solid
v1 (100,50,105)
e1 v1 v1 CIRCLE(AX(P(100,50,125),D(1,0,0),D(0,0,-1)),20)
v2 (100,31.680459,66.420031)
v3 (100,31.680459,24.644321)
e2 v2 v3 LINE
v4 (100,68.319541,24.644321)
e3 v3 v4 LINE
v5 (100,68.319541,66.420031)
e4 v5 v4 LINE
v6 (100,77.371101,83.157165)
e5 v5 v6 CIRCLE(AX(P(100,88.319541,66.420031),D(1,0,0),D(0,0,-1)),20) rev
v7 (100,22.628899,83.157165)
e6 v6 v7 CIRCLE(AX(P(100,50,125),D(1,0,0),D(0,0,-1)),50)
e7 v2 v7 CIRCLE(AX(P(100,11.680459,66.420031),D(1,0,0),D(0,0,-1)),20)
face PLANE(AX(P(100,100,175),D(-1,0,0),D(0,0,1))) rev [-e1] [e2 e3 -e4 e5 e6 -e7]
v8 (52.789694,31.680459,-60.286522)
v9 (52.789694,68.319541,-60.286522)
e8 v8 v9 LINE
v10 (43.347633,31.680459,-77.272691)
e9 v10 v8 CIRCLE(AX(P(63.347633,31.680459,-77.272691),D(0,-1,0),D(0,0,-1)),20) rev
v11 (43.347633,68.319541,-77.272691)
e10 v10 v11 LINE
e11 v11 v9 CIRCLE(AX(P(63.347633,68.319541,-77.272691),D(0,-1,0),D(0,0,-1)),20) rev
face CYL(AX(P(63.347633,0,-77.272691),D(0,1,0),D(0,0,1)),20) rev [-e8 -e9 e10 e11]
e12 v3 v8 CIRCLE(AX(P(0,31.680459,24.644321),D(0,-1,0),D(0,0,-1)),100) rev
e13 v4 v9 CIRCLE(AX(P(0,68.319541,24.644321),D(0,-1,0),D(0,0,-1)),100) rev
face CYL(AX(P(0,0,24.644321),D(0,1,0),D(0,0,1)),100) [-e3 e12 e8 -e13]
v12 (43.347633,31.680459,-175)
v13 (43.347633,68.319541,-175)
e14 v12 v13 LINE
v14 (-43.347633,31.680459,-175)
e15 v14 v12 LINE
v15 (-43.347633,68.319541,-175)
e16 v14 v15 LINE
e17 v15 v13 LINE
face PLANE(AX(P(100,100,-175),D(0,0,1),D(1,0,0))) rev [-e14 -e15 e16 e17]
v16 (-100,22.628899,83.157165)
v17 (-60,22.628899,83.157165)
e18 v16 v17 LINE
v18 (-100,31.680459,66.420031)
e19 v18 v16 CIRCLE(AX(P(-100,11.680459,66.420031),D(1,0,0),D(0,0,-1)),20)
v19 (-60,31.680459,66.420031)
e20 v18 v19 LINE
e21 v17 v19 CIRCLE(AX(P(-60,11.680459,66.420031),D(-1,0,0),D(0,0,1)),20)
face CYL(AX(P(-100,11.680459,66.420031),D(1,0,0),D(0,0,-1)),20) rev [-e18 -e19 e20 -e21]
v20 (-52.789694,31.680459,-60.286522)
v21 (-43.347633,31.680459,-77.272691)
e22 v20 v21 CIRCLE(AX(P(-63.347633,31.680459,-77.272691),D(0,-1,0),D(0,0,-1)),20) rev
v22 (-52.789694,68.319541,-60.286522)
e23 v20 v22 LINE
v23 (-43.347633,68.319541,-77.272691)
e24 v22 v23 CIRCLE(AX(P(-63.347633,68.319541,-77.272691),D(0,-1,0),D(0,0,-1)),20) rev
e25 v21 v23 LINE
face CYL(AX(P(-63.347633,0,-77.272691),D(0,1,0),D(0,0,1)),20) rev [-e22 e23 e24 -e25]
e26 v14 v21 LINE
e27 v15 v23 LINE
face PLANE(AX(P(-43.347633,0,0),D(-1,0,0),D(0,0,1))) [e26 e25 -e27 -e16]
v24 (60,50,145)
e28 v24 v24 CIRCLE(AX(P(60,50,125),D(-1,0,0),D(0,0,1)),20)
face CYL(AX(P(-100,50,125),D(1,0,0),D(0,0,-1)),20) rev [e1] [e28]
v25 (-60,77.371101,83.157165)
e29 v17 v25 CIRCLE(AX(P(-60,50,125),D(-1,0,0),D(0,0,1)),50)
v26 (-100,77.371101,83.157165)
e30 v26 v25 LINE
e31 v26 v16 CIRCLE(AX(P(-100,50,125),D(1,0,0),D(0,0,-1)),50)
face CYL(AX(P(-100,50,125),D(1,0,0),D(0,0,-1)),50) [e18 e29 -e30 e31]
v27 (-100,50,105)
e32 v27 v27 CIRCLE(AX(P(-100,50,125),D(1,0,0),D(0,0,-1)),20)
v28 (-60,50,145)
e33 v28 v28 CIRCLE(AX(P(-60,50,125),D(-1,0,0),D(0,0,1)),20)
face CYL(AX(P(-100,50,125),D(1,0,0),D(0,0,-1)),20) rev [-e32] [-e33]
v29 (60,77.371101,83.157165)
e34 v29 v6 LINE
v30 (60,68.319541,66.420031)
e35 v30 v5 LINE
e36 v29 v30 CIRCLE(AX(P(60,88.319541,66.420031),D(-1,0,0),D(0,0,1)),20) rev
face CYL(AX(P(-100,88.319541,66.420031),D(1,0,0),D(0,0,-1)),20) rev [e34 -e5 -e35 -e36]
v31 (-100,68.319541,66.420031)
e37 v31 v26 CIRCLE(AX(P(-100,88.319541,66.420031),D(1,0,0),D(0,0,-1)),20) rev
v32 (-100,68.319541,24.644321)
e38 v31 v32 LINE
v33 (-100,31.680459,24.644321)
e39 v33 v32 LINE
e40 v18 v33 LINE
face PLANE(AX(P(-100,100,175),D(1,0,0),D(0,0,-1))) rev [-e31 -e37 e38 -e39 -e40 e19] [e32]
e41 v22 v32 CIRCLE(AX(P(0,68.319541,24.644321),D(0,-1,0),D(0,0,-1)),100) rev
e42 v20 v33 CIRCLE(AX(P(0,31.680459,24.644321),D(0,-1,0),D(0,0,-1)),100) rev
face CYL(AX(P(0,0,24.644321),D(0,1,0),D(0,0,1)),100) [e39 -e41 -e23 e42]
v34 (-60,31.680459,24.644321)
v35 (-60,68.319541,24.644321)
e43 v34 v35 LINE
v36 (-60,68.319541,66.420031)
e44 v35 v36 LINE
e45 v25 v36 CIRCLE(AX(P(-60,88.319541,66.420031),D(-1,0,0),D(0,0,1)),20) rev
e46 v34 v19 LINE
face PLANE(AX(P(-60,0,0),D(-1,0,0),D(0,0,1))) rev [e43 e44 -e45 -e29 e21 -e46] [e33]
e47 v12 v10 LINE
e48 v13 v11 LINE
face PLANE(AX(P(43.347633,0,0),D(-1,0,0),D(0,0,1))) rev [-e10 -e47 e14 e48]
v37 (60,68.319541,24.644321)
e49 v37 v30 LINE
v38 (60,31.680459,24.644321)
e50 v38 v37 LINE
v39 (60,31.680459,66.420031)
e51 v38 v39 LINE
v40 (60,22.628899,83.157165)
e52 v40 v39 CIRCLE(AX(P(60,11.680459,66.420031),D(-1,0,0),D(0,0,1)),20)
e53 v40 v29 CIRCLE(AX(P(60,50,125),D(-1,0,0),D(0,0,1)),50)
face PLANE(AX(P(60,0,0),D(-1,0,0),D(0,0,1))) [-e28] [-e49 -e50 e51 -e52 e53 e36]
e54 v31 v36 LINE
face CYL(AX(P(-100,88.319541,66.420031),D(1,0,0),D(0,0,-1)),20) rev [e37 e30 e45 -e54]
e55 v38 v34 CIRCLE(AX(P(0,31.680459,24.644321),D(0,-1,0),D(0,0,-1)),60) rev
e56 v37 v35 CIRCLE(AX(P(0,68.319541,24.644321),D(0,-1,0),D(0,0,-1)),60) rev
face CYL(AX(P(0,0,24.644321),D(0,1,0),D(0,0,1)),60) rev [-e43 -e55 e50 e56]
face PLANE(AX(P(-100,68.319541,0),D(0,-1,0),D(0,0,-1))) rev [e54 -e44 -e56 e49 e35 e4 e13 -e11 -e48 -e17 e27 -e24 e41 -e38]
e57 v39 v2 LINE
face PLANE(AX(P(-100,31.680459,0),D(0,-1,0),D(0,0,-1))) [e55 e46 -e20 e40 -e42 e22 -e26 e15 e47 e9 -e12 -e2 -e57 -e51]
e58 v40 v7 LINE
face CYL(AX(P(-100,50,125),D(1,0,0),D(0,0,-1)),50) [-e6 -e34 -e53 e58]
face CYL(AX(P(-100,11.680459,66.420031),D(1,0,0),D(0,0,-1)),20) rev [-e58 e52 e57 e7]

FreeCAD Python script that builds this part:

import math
import FreeCAD as App
import Part
import Sketcher


def add_polygon(sketch, points):
    """Adds a closed chain of lines whose ends are joined by coincident constraints."""
    first, n = sketch.GeometryCount, len(points)
    for a, b in zip(points, points[1:] + points[:1]):
        sketch.addGeometry(Part.LineSegment(App.Vector(*a, 0), App.Vector(*b, 0)), False)
    for i in range(n):
        sketch.addConstraint(Sketcher.Constraint("Coincident", first + i, 2, first + (i + 1) % n, 1))

doc = App.newDocument("Part")
params = doc.addObject("Spreadsheet::Sheet", "Params")
for row, (alias, value) in enumerate([
    ("sketch1_width", "200 mm"),
    ("sketch1_height", "350 mm"),
    ("pad1_length", "100 mm"),
    ("sketch2_radius", "20 mm"),
    ("sketch2_radius2", "100 mm"),
    ("sketch2_radius3", "60 mm"),
    ("sketch3_diameter", "40 mm"),
    ("sketch3_radius", "50 mm"),
], start=1):
    params.set(f"A{row}", alias)
    params.set(f"B{row}", "=" + value)
    params.setAlias(f"B{row}", alias)

body = doc.addObject("PartDesign::Body", "Body")

# Sketch on XZ plane
sketch1 = body.newObject("Sketcher::SketchObject", "Sketch")
sketch1.AttachmentSupport = (doc.getObject("XZ_Plane"), [""])
sketch1.MapMode = "FlatFace"
add_polygon(sketch1, [(-100, -175), (-100, 175), (100, 175), (100, -175)])  # lines 0-3
sketch1.addConstraint(Sketcher.Constraint("Vertical", 0))
sketch1.addConstraint(Sketcher.Constraint("Horizontal", 1))
sketch1.addConstraint(Sketcher.Constraint("Vertical", 2))
sketch1.addConstraint(Sketcher.Constraint("Horizontal", 3))
sketch1.addConstraint(Sketcher.Constraint("Symmetric", 0, 2, 2, 2, -1, 1))
sketch1.addConstraint(Sketcher.Constraint("DistanceX", 1, 1, 1, 2, 200.0))
sketch1.addConstraint(Sketcher.Constraint("DistanceY", 0, 1, 0, 2, 350.0))
sketch1.setExpression("Constraints[9]", "Params.sketch1_width")
sketch1.setExpression("Constraints[10]", "Params.sketch1_height")
pad1 = body.newObject("PartDesign::Pad", "Pad")
pad1.Profile = sketch1
pad1.setExpression("Length", "Params.pad1_length")
pad1.Reversed = True

# Sketch on XZ plane
sketch2 = body.newObject("Sketcher::SketchObject", "Sketch001")
sketch2.AttachmentSupport = (doc.getObject("XZ_Plane"), [""])
sketch2.MapMode = "FlatFace"
sketch2.AttachmentOffset = App.Placement(App.Vector(0, 0, -100), App.Rotation())
sketch2.addGeometry(Part.LineSegment(App.Vector(100, -175, 0), App.Vector(43, -175, 0)), False)
sketch2.addGeometry(Part.LineSegment(App.Vector(43, -175, 0), App.Vector(43, -77, 0)), False)
sketch2.addGeometry(Part.ArcOfCircle(Part.Circle(App.Vector(63, -77, 0), App.Vector(0, 0, 1), 20), math.radians(122), math.radians(180)), False)
sketch2.addGeometry(Part.ArcOfCircle(Part.Circle(App.Vector(0, 25, 0), App.Vector(0, 0, 1), 100), math.radians(-58), math.radians(0)), False)
sketch2.addGeometry(Part.LineSegment(App.Vector(100, 25, 0), App.Vector(100, -175, 0)), False)
sketch2.addGeometry(Part.LineSegment(App.Vector(-43, -77, 0), App.Vector(-43, -175, 0)), False)
sketch2.addGeometry(Part.LineSegment(App.Vector(-43, -175, 0), App.Vector(-100, -175, 0)), False)
sketch2.addGeometry(Part.LineSegment(App.Vector(-100, -175, 0), App.Vector(-100, 25, 0)), False)
sketch2.addGeometry(Part.ArcOfCircle(Part.Circle(App.Vector(0, 25, 0), App.Vector(0, 0, 1), 100), math.radians(180), math.radians(238)), False)
sketch2.addGeometry(Part.ArcOfCircle(Part.Circle(App.Vector(-63, -77, 0), App.Vector(0, 0, 1), 20), math.radians(0), math.radians(58)), False)
sketch2.addGeometry(Part.LineSegment(App.Vector(60, 175, 0), App.Vector(60, 25, 0)), False)
sketch2.addGeometry(Part.ArcOfCircle(Part.Circle(App.Vector(0, 25, 0), App.Vector(0, 0, 1), 60), math.radians(180), math.radians(360)), False)
sketch2.addGeometry(Part.LineSegment(App.Vector(-60, 25, 0), App.Vector(-60, 175, 0)), False)
sketch2.addGeometry(Part.LineSegment(App.Vector(-60, 175, 0), App.Vector(60, 175, 0)), False)
sketch2.addConstraint(Sketcher.Constraint("Coincident", 0, 2, 1, 1))
sketch2.addConstraint(Sketcher.Constraint("Tangent", 1, 2, 2, 2))
sketch2.addConstraint(Sketcher.Constraint("Tangent", 2, 1, 3, 1))
sketch2.addConstraint(Sketcher.Constraint("Tangent", 3, 2, 4, 1))
sketch2.addConstraint(Sketcher.Constraint("Coincident", 4, 2, 0, 1))
sketch2.addConstraint(Sketcher.Constraint("Coincident", 5, 2, 6, 1))
sketch2.addConstraint(Sketcher.Constraint("Coincident", 6, 2, 7, 1))
sketch2.addConstraint(Sketcher.Constraint("Tangent", 7, 2, 8, 1))
sketch2.addConstraint(Sketcher.Constraint("Tangent", 8, 2, 9, 2))
sketch2.addConstraint(Sketcher.Constraint("Tangent", 9, 1, 5, 1))
sketch2.addConstraint(Sketcher.Constraint("Tangent", 10, 2, 11, 2))
sketch2.addConstraint(Sketcher.Constraint("Tangent", 11, 1, 12, 1))
sketch2.addConstraint(Sketcher.Constraint("Coincident", 12, 2, 13, 1))
sketch2.addConstraint(Sketcher.Constraint("Coincident", 13, 2, 10, 1))
sketch2.addConstraint(Sketcher.Constraint("Horizontal", 0))
sketch2.addConstraint(Sketcher.Constraint("Vertical", 1))
sketch2.addConstraint(Sketcher.Constraint("Vertical", 4))
sketch2.addConstraint(Sketcher.Constraint("Vertical", 5))
sketch2.addConstraint(Sketcher.Constraint("Horizontal", 6))
sketch2.addConstraint(Sketcher.Constraint("Vertical", 7))
sketch2.addConstraint(Sketcher.Constraint("Vertical", 10))
sketch2.addConstraint(Sketcher.Constraint("Vertical", 12))
sketch2.addConstraint(Sketcher.Constraint("Horizontal", 13))
sketch2.addConstraint(Sketcher.Constraint("Coincident", 8, 3, 3, 3))
sketch2.addConstraint(Sketcher.Constraint("Coincident", 11, 3, 3, 3))
sketch2.addConstraint(Sketcher.Constraint("Equal", 3, 8))
sketch2.addConstraint(Sketcher.Constraint("Equal", 2, 9))
sketch2.addConstraint(Sketcher.Constraint("Symmetric", 2, 3, 9, 3, -2))
sketch2.addConstraint(Sketcher.Constraint("Horizontal", 4, 2, 5, 2))
sketch2.addConstraint(Sketcher.Constraint("Radius", 2, 20.0))
sketch2.addConstraint(Sketcher.Constraint("Radius", 3, 100.0))
sketch2.addConstraint(Sketcher.Constraint("Radius", 11, 60.0))
sketch2.addConstraint(Sketcher.Constraint("DistanceY", 0, 2, -1, 1, 175.0))
sketch2.addConstraint(Sketcher.Constraint("DistanceY", -1, 1, 12, 2, 175.0))
sketch2.addConstraint(Sketcher.Constraint("DistanceY", 1, 1, 1, 2, 97.727309))
sketch2.addConstraint(Sketcher.Constraint("DistanceY", 4, 2, 4, 1, 199.644321))
sketch2.setExpression("Constraints[29]", "Params.sketch2_radius")
sketch2.setExpression("Constraints[30]", "Params.sketch2_radius2")
sketch2.setExpression("Constraints[31]", "Params.sketch2_radius3")
pocket1 = body.newObject("PartDesign::Pocket", "Pocket")
pocket1.Profile = sketch2
pocket1.Type = "ThroughAll"
pocket1.Reversed = True

# Sketch on YZ plane
sketch3 = body.newObject("Sketcher::SketchObject", "Sketch002")
sketch3.AttachmentSupport = (doc.getObject("YZ_Plane"), [""])
sketch3.MapMode = "FlatFace"
sketch3.AttachmentOffset = App.Placement(App.Vector(0, 0, 100), App.Rotation())
sketch3.addGeometry(Part.LineSegment(App.Vector(100, 175, 0), App.Vector(50, 175, 0)), False)
sketch3.addGeometry(Part.ArcOfCircle(Part.Circle(App.Vector(50, 125, 0), App.Vector(0, 0, 1), 50), math.radians(0), math.radians(90)), False)
sketch3.addGeometry(Part.LineSegment(App.Vector(100, 125, 0), App.Vector(100, 175, 0)), False)
sketch3.addGeometry(Part.Circle(App.Vector(50, 125, 0), App.Vector(0, 0, 1), 20), False)
sketch3.addGeometry(Part.ArcOfCircle(Part.Circle(App.Vector(50, 125, 0), App.Vector(0, 0, 1), 50), math.radians(90), math.radians(180)), False)
sketch3.addGeometry(Part.LineSegment(App.Vector(50, 175, 0), App.Vector(0, 175, 0)), False)
sketch3.addGeometry(Part.LineSegment(App.Vector(0, 175, 0), App.Vector(0, 125, 0)), False)
sketch3.addGeometry(Part.ArcOfCircle(Part.Circle(App.Vector(50, 125, 0), App.Vector(0, 0, 1), 50), math.radians(-180), math.radians(-123)), False)
sketch3.addGeometry(Part.LineSegment(App.Vector(0, 125, 0), App.Vector(0, -77, 0)), False)
sketch3.addGeometry(Part.LineSegment(App.Vector(0, -77, 0), App.Vector(0, -175, 0)), False)
sketch3.addGeometry(Part.LineSegment(App.Vector(0, -175, 0), App.Vector(32, -175, 0)), False)
sketch3.addGeometry(Part.LineSegment(App.Vector(32, -175, 0), App.Vector(32, -77, 0)), False)
sketch3.addGeometry(Part.LineSegment(App.Vector(32, -77, 0), App.Vector(32, 66, 0)), False)
sketch3.addGeometry(Part.ArcOfCircle(Part.Circle(App.Vector(12, 66, 0), App.Vector(0, 0, 1), 20), math.radians(0), math.radians(57)), False)
sketch3.addGeometry(Part.ArcOfCircle(Part.Circle(App.Vector(50, 125, 0), App.Vector(0, 0, 1), 50), math.radians(-57), math.radians(0)), False)
sketch3.addGeometry(Part.ArcOfCircle(Part.Circle(App.Vector(88, 66, 0), App.Vector(0, 0, 1), 20), math.radians(123), math.radians(180)), False)
sketch3.addGeometry(Part.LineSegment(App.Vector(68, 66, 0), App.Vector(68, -77, 0)), False)
sketch3.addGeometry(Part.LineSegment(App.Vector(68, -77, 0), App.Vector(68, -175, 0)), False)
sketch3.addGeometry(Part.LineSegment(App.Vector(68, -175, 0), App.Vector(100, -175, 0)), False)
sketch3.addGeometry(Part.LineSegment(App.Vector(100, -175, 0), App.Vector(100, -77, 0)), False)
sketch3.addGeometry(Part.LineSegment(App.Vector(100, -77, 0), App.Vector(100, 125, 0)), False)
sketch3.addConstraint(Sketcher.Constraint("Tangent", 0, 2, 1, 2))
sketch3.addConstraint(Sketcher.Constraint("Tangent", 1, 1, 2, 1))
sketch3.addConstraint(Sketcher.Constraint("Coincident", 2, 2, 0, 1))
sketch3.addConstraint(Sketcher.Constraint("Tangent", 4, 1, 5, 1))
sketch3.addConstraint(Sketcher.Constraint("Coincident", 5, 2, 6, 1))
sketch3.addConstraint(Sketcher.Constraint("Tangent", 6, 2, 4, 2))
sketch3.addConstraint(Sketcher.Constraint("Tangent", 7, 1, 8, 1))
sketch3.addConstraint(Sketcher.Constraint("Coincident", 8, 2, 9, 1))
sketch3.addConstraint(Sketcher.Constraint("Coincident", 9, 2, 10, 1))
sketch3.addConstraint(Sketcher.Constraint("Coincident", 10, 2, 11, 1))
sketch3.addConstraint(Sketcher.Constraint("Coincident", 11, 2, 12, 1))
sketch3.addConstraint(Sketcher.Constraint("Tangent", 12, 2, 13, 1))
sketch3.addConstraint(Sketcher.Constraint("Tangent", 13, 2, 7, 2))
sketch3.addConstraint(Sketcher.Constraint("Tangent", 14, 1, 15, 1))
sketch3.addConstraint(Sketcher.Constraint("Tangent", 15, 2, 16, 1))
sketch3.addConstraint(Sketcher.Constraint("Coincident", 16, 2, 17, 1))
sketch3.addConstraint(Sketcher.Constraint("Coincident", 17, 2, 18, 1))
sketch3.addConstraint(Sketcher.Constraint("Coincident", 18, 2, 19, 1))
sketch3.addConstraint(Sketcher.Constraint("Coincident", 19, 2, 20, 1))
sketch3.addConstraint(Sketcher.Constraint("Tangent", 20, 2, 14, 2))
sketch3.addConstraint(Sketcher.Constraint("Horizontal", 0))
sketch3.addConstraint(Sketcher.Constraint("Vertical", 2))
sketch3.addConstraint(Sketcher.Constraint("Horizontal", 5))
sketch3.addConstraint(Sketcher.Constraint("Vertical", 6))
sketch3.addConstraint(Sketcher.Constraint("Vertical", 8))
sketch3.addConstraint(Sketcher.Constraint("Vertical", 9))
sketch3.addConstraint(Sketcher.Constraint("Horizontal", 10))
sketch3.addConstraint(Sketcher.Constraint("Vertical", 11))
sketch3.addConstraint(Sketcher.Constraint("Vertical", 12))
sketch3.addConstraint(Sketcher.Constraint("Vertical", 16))
sketch3.addConstraint(Sketcher.Constraint("Vertical", 17))
sketch3.addConstraint(Sketcher.Constraint("Horizontal", 18))
sketch3.addConstraint(Sketcher.Constraint("Vertical", 19))
sketch3.addConstraint(Sketcher.Constraint("Vertical", 20))
sketch3.addConstraint(Sketcher.Constraint("Coincident", 3, 3, 1, 3))
sketch3.addConstraint(Sketcher.Constraint("Coincident", 4, 3, 1, 3))
sketch3.addConstraint(Sketcher.Constraint("Coincident", 7, 3, 1, 3))
sketch3.addConstraint(Sketcher.Constraint("Coincident", 14, 3, 1, 3))
sketch3.addConstraint(Sketcher.Constraint("Equal", 1, 4))
sketch3.addConstraint(Sketcher.Constraint("Equal", 4, 7))
sketch3.addConstraint(Sketcher.Constraint("Equal", 3, 13))
sketch3.addConstraint(Sketcher.Constraint("Equal", 7, 14))
sketch3.addConstraint(Sketcher.Constraint("Equal", 13, 15))
sketch3.addConstraint(Sketcher.Constraint("Symmetric", 5, 2, 9, 2, -1, 1))
sketch3.addConstraint(Sketcher.Constraint("Horizontal", 13, 3, 15, 3))
sketch3.addConstraint(Sketcher.Constraint("Horizontal", 8, 2, 11, 2))
sketch3.addConstraint(Sketcher.Constraint("Horizontal", 11, 2, 16, 2))
sketch3.addConstraint(Sketcher.Constraint("Horizontal", 10, 2, 17, 2))
sketch3.addConstraint(Sketcher.Constraint("Horizontal", 16, 2, 19, 2))
sketch3.addConstraint(Sketcher.Constraint("Diameter", 3, 40.0))
sketch3.addConstraint(Sketcher.Constraint("Radius", 1, 50.0))
sketch3.addConstraint(Sketcher.Constraint("DistanceY", -1, 1, 1, 3, 125.0))
sketch3.addConstraint(Sketcher.Constraint("DistanceX", 10, 1, 10, 2, 31.680459))
sketch3.addConstraint(Sketcher.Constraint("DistanceY", 8, 2, 8, 1, 202.272691))
sketch3.setExpression("Constraints[49]", "Params.sketch3_diameter")
sketch3.setExpression("Constraints[50]", "Params.sketch3_radius")
pocket2 = body.newObject("PartDesign::Pocket", "Pocket001")
pocket2.Profile = sketch3
pocket2.Type = "ThroughAll"

doc.recompute()
